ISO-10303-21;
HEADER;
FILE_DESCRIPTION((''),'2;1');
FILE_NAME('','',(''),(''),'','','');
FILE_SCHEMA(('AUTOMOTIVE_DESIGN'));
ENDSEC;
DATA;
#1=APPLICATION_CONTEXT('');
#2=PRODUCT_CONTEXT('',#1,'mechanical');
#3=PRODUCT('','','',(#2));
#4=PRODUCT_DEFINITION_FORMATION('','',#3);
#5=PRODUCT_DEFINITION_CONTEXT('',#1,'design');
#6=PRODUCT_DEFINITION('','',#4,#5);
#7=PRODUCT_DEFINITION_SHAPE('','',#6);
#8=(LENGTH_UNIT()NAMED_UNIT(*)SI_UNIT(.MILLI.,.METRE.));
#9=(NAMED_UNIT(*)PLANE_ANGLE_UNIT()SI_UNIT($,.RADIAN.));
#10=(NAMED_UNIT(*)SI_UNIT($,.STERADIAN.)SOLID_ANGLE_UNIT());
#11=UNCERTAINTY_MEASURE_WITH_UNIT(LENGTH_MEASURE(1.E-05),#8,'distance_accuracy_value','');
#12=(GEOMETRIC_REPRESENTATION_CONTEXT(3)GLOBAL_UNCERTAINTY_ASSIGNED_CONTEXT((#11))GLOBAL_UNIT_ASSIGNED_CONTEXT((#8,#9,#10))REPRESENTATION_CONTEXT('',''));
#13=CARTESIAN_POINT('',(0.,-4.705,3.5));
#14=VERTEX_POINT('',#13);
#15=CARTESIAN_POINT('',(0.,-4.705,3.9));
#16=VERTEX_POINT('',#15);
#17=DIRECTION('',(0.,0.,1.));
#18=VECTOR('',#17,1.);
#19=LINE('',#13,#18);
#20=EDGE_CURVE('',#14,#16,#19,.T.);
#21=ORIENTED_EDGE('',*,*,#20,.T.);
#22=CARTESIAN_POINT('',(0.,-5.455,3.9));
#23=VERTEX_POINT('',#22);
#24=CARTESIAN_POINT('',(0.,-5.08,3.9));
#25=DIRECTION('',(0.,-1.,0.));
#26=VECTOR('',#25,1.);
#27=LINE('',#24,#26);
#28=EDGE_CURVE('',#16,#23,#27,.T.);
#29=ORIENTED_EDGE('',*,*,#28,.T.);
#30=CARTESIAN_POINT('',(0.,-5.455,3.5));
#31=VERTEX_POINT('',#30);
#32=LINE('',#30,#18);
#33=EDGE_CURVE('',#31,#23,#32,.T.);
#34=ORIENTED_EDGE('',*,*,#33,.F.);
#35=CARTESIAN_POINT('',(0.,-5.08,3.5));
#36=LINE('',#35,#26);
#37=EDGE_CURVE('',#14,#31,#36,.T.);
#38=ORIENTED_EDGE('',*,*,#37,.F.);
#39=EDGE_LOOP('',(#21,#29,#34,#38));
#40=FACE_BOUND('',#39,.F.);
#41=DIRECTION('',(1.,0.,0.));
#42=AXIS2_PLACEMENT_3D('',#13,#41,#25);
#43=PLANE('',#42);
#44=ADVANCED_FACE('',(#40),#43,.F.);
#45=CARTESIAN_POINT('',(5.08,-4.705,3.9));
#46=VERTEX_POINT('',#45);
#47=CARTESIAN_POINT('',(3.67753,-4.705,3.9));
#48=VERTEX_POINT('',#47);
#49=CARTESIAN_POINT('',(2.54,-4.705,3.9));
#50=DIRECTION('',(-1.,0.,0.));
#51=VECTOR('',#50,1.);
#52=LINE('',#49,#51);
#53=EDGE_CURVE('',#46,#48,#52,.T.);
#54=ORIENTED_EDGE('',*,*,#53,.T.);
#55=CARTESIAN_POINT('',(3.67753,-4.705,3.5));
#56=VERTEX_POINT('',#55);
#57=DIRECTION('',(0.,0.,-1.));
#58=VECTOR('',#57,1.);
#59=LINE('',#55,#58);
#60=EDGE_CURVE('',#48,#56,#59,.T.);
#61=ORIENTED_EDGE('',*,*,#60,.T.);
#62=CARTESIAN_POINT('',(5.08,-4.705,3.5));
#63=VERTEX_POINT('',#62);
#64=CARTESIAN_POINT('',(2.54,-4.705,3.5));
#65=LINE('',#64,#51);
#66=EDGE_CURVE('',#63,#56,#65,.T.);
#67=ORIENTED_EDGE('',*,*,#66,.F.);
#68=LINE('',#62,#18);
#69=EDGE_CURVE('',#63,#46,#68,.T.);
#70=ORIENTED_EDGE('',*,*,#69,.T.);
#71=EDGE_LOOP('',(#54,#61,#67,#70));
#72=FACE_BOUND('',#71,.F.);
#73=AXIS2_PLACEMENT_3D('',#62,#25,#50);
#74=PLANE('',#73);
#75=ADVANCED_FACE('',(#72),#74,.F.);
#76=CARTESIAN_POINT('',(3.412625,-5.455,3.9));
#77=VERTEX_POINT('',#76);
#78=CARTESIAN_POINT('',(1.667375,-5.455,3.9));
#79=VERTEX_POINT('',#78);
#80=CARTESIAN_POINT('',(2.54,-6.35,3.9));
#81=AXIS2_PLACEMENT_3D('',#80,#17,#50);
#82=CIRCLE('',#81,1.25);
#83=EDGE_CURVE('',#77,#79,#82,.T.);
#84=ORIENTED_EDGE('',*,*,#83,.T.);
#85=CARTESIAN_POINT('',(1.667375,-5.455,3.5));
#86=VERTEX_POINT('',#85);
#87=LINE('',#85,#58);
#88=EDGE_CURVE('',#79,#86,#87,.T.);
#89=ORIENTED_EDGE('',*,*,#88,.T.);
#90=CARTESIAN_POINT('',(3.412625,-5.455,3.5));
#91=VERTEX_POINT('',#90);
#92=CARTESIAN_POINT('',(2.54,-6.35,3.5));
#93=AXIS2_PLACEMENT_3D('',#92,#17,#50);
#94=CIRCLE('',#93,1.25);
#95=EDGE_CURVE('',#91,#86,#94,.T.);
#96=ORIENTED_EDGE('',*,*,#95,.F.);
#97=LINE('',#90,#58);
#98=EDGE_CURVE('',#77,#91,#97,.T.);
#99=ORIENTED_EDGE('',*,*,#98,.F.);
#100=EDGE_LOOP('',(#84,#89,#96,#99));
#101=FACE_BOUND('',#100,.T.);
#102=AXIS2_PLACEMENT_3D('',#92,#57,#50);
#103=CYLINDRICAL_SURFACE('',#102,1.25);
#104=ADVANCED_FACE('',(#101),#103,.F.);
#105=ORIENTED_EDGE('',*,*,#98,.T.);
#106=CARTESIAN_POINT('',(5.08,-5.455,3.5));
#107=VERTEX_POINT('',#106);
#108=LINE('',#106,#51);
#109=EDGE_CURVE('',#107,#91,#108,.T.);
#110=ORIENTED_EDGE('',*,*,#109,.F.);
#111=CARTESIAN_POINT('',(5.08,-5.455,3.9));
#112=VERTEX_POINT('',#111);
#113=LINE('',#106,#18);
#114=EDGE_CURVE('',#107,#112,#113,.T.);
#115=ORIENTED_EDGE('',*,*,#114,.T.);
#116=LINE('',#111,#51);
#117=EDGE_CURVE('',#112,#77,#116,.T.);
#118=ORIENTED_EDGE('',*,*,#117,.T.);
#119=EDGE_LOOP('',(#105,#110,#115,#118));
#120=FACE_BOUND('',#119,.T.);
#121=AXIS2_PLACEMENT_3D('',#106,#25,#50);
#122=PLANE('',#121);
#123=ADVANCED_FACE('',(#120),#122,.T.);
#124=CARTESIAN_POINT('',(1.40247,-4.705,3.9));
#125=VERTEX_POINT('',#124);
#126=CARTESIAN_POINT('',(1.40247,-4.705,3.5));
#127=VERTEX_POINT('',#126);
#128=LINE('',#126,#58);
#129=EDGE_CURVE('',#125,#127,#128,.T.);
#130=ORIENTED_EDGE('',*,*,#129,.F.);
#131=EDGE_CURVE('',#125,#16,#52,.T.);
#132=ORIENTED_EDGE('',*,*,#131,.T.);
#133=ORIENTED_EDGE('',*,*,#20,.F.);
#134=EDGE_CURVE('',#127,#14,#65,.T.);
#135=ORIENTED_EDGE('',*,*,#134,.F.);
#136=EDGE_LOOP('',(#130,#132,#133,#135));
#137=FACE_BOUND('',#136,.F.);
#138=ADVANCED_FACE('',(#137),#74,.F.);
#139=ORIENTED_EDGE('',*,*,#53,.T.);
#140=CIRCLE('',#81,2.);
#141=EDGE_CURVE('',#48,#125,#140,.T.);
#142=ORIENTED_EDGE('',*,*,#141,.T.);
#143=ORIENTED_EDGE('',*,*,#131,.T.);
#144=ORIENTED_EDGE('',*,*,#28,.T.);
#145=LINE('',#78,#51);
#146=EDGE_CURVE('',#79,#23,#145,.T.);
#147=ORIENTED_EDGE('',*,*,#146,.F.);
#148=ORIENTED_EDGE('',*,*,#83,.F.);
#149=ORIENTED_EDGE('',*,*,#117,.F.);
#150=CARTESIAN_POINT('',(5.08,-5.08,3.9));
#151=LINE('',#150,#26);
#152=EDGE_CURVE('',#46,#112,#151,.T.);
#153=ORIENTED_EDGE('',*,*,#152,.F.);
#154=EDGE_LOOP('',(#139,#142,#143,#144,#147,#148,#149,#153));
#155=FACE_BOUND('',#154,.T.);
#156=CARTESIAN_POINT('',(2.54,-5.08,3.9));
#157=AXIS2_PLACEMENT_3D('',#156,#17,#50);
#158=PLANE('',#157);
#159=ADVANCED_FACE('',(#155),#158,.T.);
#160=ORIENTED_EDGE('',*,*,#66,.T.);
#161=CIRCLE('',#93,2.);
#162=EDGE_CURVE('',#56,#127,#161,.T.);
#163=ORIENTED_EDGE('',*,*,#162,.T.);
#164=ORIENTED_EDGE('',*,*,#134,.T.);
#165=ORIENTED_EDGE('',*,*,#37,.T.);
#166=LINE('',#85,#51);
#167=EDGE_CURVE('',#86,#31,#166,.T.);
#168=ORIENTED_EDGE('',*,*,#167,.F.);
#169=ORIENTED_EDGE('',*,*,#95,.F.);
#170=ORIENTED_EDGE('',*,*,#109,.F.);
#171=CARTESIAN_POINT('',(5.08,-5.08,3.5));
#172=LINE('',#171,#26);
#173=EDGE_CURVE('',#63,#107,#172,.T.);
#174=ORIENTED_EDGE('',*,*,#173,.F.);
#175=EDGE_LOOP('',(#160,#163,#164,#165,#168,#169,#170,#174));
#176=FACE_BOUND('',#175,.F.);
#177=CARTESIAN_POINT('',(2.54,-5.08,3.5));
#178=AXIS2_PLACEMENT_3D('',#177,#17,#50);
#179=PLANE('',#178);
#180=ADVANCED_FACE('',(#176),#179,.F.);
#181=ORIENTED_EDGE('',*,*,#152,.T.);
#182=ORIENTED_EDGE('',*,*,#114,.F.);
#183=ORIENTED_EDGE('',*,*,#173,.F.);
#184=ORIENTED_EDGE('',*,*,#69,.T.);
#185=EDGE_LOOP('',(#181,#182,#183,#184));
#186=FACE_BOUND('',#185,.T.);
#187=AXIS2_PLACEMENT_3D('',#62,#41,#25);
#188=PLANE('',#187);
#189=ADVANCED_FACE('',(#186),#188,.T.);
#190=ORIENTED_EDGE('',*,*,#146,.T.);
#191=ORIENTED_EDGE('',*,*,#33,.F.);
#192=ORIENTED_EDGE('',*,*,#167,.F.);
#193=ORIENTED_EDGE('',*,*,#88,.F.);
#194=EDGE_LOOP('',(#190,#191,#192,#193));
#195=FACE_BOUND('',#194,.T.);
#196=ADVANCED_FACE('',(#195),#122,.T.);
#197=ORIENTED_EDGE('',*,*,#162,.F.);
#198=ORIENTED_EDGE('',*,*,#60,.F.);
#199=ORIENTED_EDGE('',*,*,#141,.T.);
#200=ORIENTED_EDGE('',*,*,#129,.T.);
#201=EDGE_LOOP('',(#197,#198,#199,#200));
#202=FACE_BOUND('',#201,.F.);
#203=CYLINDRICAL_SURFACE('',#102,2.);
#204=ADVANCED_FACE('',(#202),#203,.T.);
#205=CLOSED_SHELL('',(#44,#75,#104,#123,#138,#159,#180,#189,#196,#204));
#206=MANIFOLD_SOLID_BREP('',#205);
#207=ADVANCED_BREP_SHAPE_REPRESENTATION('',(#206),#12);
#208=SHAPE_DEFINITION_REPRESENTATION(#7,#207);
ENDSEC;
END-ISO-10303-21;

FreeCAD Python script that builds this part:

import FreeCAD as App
import Part
import Sketcher
Q = App.Units.Quantity

doc = App.newDocument("Part")
params = doc.addObject("Spreadsheet::Sheet", "Params")
for row, (alias, value) in enumerate([
    ("sketch1_width", "6 mm"),
    ("sketch1_height", "4 mm"),
    ("pad1_length", "0.4 mm"),
    ("sketch2_diameter", "2.5 mm"),
    ("pad2_length", "0.4 mm"),
    ("sketch3_diameter", "4 mm"),
    ("pad3_length", "0.4 mm"),
    ("sketch4_width", "5.08 mm"),
    ("sketch4_height", "0.75 mm"),
    ("pad4_length", "0.4 mm"),
], start=1):
    params.set(f"A{row}", alias)
    params.set(f"B{row}", "=" + value)
    params.setAlias(f"B{row}", alias)

body = doc.addObject("PartDesign::Body", "Body")

# Sketch on XY plane
sketch1 = body.newObject("Sketcher::SketchObject", "Sketch")
sketch1.AttachmentSupport = (doc.getObject("XY_Plane"), [""])
sketch1.MapMode = "FlatFace"
sketch1.addGeometry(Part.LineSegment(App.Vector(-3, 6.915, 0), App.Vector(-3, 2.915, 0)), False)
sketch1.addGeometry(Part.LineSegment(App.Vector(-3, 2.915, 0), App.Vector(3, 2.915, 0)), False)
sketch1.addGeometry(Part.LineSegment(App.Vector(3, 2.915, 0), App.Vector(3, 6.915, 0)), False)
sketch1.addGeometry(Part.LineSegment(App.Vector(3, 6.915, 0), App.Vector(-3, 6.915, 0)), False)
sketch1.addConstraint(Sketcher.Constraint("Coincident", 0, 2, 1, 1))
sketch1.addConstraint(Sketcher.Constraint("Coincident", 1, 2, 2, 1))
sketch1.addConstraint(Sketcher.Constraint("Coincident", 2, 2, 3, 1))
sketch1.addConstraint(Sketcher.Constraint("Coincident", 3, 2, 0, 1))
sketch1.addConstraint(Sketcher.Constraint("Vertical", 0))
sketch1.addConstraint(Sketcher.Constraint("Horizontal", 1))
sketch1.addConstraint(Sketcher.Constraint("Vertical", 2))
sketch1.addConstraint(Sketcher.Constraint("Horizontal", 3))
sketch1.addConstraint(Sketcher.Constraint("DistanceX", 1, 1, 1, 2, Q("6 mm")))
sketch1.addConstraint(Sketcher.Constraint("DistanceY", 0, 2, 0, 1, Q("4 mm")))
sketch1.addConstraint(Sketcher.Constraint("DistanceX", 0, 2, -1, 1, Q("3 mm")))
sketch1.addConstraint(Sketcher.Constraint("DistanceY", -1, 1, 0, 2, Q("2.915 mm")))
sketch1.setExpression("Constraints[8]", "Params.sketch1_width")
sketch1.setExpression("Constraints[9]", "Params.sketch1_height")
pad1 = body.newObject("PartDesign::Pad", "Pad")
pad1.Profile = sketch1
pad1.setExpression("Length", "Params.pad1_length")
body2 = doc.addObject("PartDesign::Body", "Body001")

# Sketch on XY plane
sketch2 = body2.newObject("Sketcher::SketchObject", "Sketch001")
sketch2.AttachmentSupport = (doc.getObject("XY_Plane001"), [""])
sketch2.MapMode = "FlatFace"
sketch2.addGeometry(Part.Circle(App.Vector(0, 3.81, 0), App.Vector(0, 0, 1), 1.25), False)
sketch2.addConstraint(Sketcher.Constraint("PointOnObject", 0, 3, -2))
sketch2.addConstraint(Sketcher.Constraint("Diameter", 0, Q("2.5 mm")))
sketch2.addConstraint(Sketcher.Constraint("DistanceY", -1, 1, 0, 3, Q("3.81 mm")))
sketch2.setExpression("Constraints[1]", "Params.sketch2_diameter")
pad2 = body2.newObject("PartDesign::Pad", "Pad001")
pad2.Profile = sketch2
pad2.setExpression("Length", "Params.pad2_length")
body3 = doc.addObject("PartDesign::Body", "Body002")

# Sketch on XY plane
sketch3 = body3.newObject("Sketcher::SketchObject", "Sketch002")
sketch3.AttachmentSupport = (doc.getObject("XY_Plane002"), [""])
sketch3.MapMode = "FlatFace"
sketch3.addGeometry(Part.Circle(App.Vector(0, 3.81, 0), App.Vector(0, 0, 1), 2), False)
sketch3.addConstraint(Sketcher.Constraint("PointOnObject", 0, 3, -2))
sketch3.addConstraint(Sketcher.Constraint("Diameter", 0, Q("4 mm")))
sketch3.addConstraint(Sketcher.Constraint("DistanceY", -1, 1, 0, 3, Q("3.81 mm")))
sketch3.setExpression("Constraints[1]", "Params.sketch3_diameter")
pad3 = body3.newObject("PartDesign::Pad", "Pad002")
pad3.Profile = sketch3
pad3.setExpression("Length", "Params.pad3_length")
doc.recompute()

body4 = doc.addObject("PartDesign::Body", "Body003")
body4.BaseFeature = body2
boolean = body3.newObject("PartDesign::Boolean", "Boolean")
boolean.Type = "Cut"
boolean.addObjects([body4])
doc.recompute()

boolean2 = body3.newObject("PartDesign::Boolean", "Boolean001")
boolean2.Type = "Cut"
boolean2.addObjects([body])
body5 = doc.addObject("PartDesign::Body", "Body004")

# Sketch on XY plane
sketch4 = body5.newObject("Sketcher::SketchObject", "Sketch003")
sketch4.AttachmentSupport = (doc.getObject("XY_Plane004"), [""])
sketch4.MapMode = "FlatFace"
sketch4.addGeometry(Part.LineSegment(App.Vector(-2.54, 2.915, 0), App.Vector(-2.54, 2.165, 0)), False)
sketch4.addGeometry(Part.LineSegment(App.Vector(-2.54, 2.165, 0), App.Vector(2.54, 2.165, 0)), False)
sketch4.addGeometry(Part.LineSegment(App.Vector(2.54, 2.165, 0), App.Vector(2.54, 2.915, 0)), False)
sketch4.addGeometry(Part.LineSegment(App.Vector(2.54, 2.915, 0), App.Vector(-2.54, 2.915, 0)), False)
sketch4.addConstraint(Sketcher.Constraint("Coincident", 0, 2, 1, 1))
sketch4.addConstraint(Sketcher.Constraint("Coincident", 1, 2, 2, 1))
sketch4.addConstraint(Sketcher.Constraint("Coincident", 2, 2, 3, 1))
sketch4.addConstraint(Sketcher.Constraint("Coincident", 3, 2, 0, 1))
sketch4.addConstraint(Sketcher.Constraint("Vertical", 0))
sketch4.addConstraint(Sketcher.Constraint("Horizontal", 1))
sketch4.addConstraint(Sketcher.Constraint("Vertical", 2))
sketch4.addConstraint(Sketcher.Constraint("Horizontal", 3))
sketch4.addConstraint(Sketcher.Constraint("DistanceX", 1, 1, 1, 2, Q("5.08 mm")))
sketch4.addConstraint(Sketcher.Constraint("DistanceY", 0, 2, 0, 1, Q("0.75 mm")))
sketch4.addConstraint(Sketcher.Constraint("DistanceX", 0, 2, -1, 1, Q("2.54 mm")))
sketch4.addConstraint(Sketcher.Constraint("DistanceY", -1, 1, 0, 2, Q("2.165 mm")))
sketch4.setExpression("Constraints[8]", "Params.sketch4_width")
sketch4.setExpression("Constraints[9]", "Params.sketch4_height")
pad4 = body5.newObject("PartDesign::Pad", "Pad003")
pad4.Profile = sketch4
pad4.setExpression("Length", "Params.pad4_length")
doc.recompute()

boolean3 = body5.newObject("PartDesign::Boolean", "Boolean002")
boolean3.Type = "Cut"
boolean3.addObjects([body2])
doc.recompute()

boolean4 = body5.newObject("PartDesign::Boolean", "Boolean003")
boolean4.Type = "Fuse"
boolean4.addObjects([body3])
body6 = doc.addObject("PartDesign::Body", "Body005")
doc.recompute()

body5.Placement = App.Placement(App.Vector(2.54, -2.54, 3.5), App.Rotation(App.Vector(0, 0, 1), 180))
boolean5 = body6.newObject("PartDesign::Boolean", "Boolean004")
boolean5.Type = "Fuse"
boolean5.addObjects([body5])

doc.recompute()
